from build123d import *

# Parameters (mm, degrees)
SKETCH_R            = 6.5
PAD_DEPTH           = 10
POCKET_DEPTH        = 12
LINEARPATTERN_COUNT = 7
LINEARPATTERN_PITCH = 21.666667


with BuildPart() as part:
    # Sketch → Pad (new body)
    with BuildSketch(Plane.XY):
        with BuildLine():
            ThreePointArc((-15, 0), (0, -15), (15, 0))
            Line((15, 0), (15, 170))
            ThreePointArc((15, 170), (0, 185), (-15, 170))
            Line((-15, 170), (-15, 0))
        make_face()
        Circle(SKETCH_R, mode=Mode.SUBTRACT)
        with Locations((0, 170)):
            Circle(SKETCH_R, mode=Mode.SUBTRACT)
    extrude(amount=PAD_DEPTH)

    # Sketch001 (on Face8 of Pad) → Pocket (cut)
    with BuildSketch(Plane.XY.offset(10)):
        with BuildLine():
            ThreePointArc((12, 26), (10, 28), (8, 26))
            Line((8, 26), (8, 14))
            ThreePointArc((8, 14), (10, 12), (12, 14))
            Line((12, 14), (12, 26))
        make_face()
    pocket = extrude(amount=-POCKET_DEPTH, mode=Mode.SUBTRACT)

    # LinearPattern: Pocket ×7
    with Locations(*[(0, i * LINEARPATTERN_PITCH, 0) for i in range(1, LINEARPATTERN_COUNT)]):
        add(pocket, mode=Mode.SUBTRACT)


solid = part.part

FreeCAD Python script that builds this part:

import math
import FreeCAD as App
import Part
import Sketcher

V = App.Vector

doc = App.newDocument("Part")
body = doc.addObject("PartDesign::Body", "Body")

# Sketch on XY plane
sketch1 = body.newObject("Sketcher::SketchObject", "Sketch")
sketch1.AttachmentSupport = (doc.getObject("XY_Plane"), [""])
sketch1.MapMode = "FlatFace"
sketch1.addGeometry(Part.ArcOfCircle(Part.Circle(V(0, 0, 0), V(0, 0, 1), 15), math.radians(180), math.radians(360)), False)
sketch1.addGeometry(Part.LineSegment(V(15, 0, 0), V(15, 170, 0)), False)
sketch1.addGeometry(Part.ArcOfCircle(Part.Circle(V(0, 170, 0), V(0, 0, 1), 15), math.radians(0), math.radians(180)), False)
sketch1.addGeometry(Part.LineSegment(V(-15, 170, 0), V(-15, 0, 0)), False)
sketch1.addGeometry(Part.Circle(V(0, 0, 0), V(0, 0, 1), 6), False)
sketch1.addGeometry(Part.Circle(V(0, 170, 0), V(0, 0, 1), 6), False)
sketch1.addConstraint(Sketcher.Constraint("Tangent", 0, 2, 1, 1))
sketch1.addConstraint(Sketcher.Constraint("Tangent", 1, 2, 2, 1))
sketch1.addConstraint(Sketcher.Constraint("Tangent", 2, 2, 3, 1))
sketch1.addConstraint(Sketcher.Constraint("Tangent", 3, 2, 0, 1))
sketch1.addConstraint(Sketcher.Constraint("Vertical", 1))
sketch1.addConstraint(Sketcher.Constraint("Vertical", 3))
sketch1.addConstraint(Sketcher.Constraint("Coincident", 0, 3, -1, 1))
sketch1.addConstraint(Sketcher.Constraint("Coincident", 4, 3, -1, 1))
sketch1.addConstraint(Sketcher.Constraint("Coincident", 5, 3, 2, 3))
sketch1.addConstraint(Sketcher.Constraint("Equal", 4, 5))
sketch1.addConstraint(Sketcher.Constraint("Diameter", 4, 13.0))
sketch1.addConstraint(Sketcher.Constraint("Radius", 0, 15.0))
sketch1.addConstraint(Sketcher.Constraint("DistanceY", 1, 1, 1, 2, 170.0))
pad1 = body.newObject("PartDesign::Pad", "Pad")
pad1.Profile = sketch1
pad1.Length = 10

# Sketch on XY plane
sketch2 = body.newObject("Sketcher::SketchObject", "Sketch001")
sketch2.AttachmentSupport = (doc.getObject("XY_Plane"), [""])
sketch2.MapMode = "FlatFace"
sketch2.AttachmentOffset = App.Placement(V(0, 0, 10), App.Rotation())
sketch2.addGeometry(Part.ArcOfCircle(Part.Circle(V(10, 26, 0), V(0, 0, 1), 2), math.radians(0), math.radians(180)), False)
sketch2.addGeometry(Part.LineSegment(V(8, 26, 0), V(8, 14, 0)), False)
sketch2.addGeometry(Part.ArcOfCircle(Part.Circle(V(10, 14, 0), V(0, 0, 1), 2), math.radians(180), math.radians(360)), False)
sketch2.addGeometry(Part.LineSegment(V(12, 14, 0), V(12, 26, 0)), False)
sketch2.addConstraint(Sketcher.Constraint("Tangent", 0, 2, 1, 1))
sketch2.addConstraint(Sketcher.Constraint("Tangent", 1, 2, 2, 1))
sketch2.addConstraint(Sketcher.Constraint("Tangent", 2, 2, 3, 1))
sketch2.addConstraint(Sketcher.Constraint("Tangent", 3, 2, 0, 1))
sketch2.addConstraint(Sketcher.Constraint("Vertical", 1))
sketch2.addConstraint(Sketcher.Constraint("Vertical", 3))
sketch2.addConstraint(Sketcher.Constraint("Radius", 0, 2.0))
sketch2.addConstraint(Sketcher.Constraint("DistanceY", 1, 2, 1, 1, 12.0))
sketch2.addConstraint(Sketcher.Constraint("DistanceX", -1, 1, 0, 3, 10.0))
sketch2.addConstraint(Sketcher.Constraint("DistanceY", -1, 1, 0, 3, 26.0))
pocket1 = body.newObject("PartDesign::Pocket", "Pocket")
pocket1.Profile = sketch2
pocket1.Length = 12
doc.recompute()

linearpattern = body.newObject("PartDesign::LinearPattern", "LinearPattern")
linearpattern.Originals = [pocket1]
linearpattern.Direction = (doc.getObject("Y_Axis"), [""])
linearpattern.Mode = "offset"
linearpattern.Offset = 21.666667
linearpattern.Occurrences = 7
body.Tip = linearpattern

doc.recompute()
